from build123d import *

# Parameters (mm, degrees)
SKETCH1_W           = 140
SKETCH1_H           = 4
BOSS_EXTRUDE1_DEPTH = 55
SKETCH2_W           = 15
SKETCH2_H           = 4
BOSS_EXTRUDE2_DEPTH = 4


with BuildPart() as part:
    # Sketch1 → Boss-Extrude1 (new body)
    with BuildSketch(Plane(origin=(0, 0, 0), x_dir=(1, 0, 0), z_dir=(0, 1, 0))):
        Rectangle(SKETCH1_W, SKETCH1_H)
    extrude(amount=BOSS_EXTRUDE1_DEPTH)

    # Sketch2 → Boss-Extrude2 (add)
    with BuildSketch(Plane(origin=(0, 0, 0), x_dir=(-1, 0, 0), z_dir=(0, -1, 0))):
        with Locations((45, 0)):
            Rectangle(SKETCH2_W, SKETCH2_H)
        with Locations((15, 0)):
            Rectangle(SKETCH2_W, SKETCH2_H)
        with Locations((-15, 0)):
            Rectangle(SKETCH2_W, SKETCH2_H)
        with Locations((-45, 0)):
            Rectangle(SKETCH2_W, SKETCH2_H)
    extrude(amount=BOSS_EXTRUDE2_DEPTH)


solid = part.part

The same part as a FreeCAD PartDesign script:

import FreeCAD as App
import Part
import Sketcher
from FreeCAD import Vector

doc = App.newDocument("Part")
params = doc.addObject("Spreadsheet::Sheet", "Params")
for row, (alias, value) in enumerate([
    ("sketch1_width", "140 mm"),
    ("sketch1_height", "4 mm"),
    ("pad1_length", "55 mm"),
    ("sketch2_width", "15 mm"),
    ("sketch2_height", "4 mm"),
    ("pad2_length", "4 mm"),
], start=1):
    params.set(f"A{row}", alias)
    params.set(f"B{row}", "=" + value)
    params.setAlias(f"B{row}", alias)

body = doc.addObject("PartDesign::Body", "Body")

# Sketch on XZ plane
sketch1 = body.newObject("Sketcher::SketchObject", "Sketch")
sketch1.AttachmentSupport = (doc.getObject("XZ_Plane"), [""])
sketch1.MapMode = "FlatFace"
sketch1.addGeometry([
    Part.LineSegment(Vector(-70, -2, 0), Vector(-70, 2, 0)),
    Part.LineSegment(Vector(-70, 2, 0), Vector(70, 2, 0)),
    Part.LineSegment(Vector(70, 2, 0), Vector(70, -2, 0)),
    Part.LineSegment(Vector(70, -2, 0), Vector(-70, -2, 0)),
], False)
sketch1.addConstraint([
    Sketcher.Constraint("Coincident", 0, 2, 1, 1),
    Sketcher.Constraint("Coincident", 1, 2, 2, 1),
    Sketcher.Constraint("Coincident", 2, 2, 3, 1),
    Sketcher.Constraint("Coincident", 3, 2, 0, 1),
    Sketcher.Constraint("Vertical", 0),
    Sketcher.Constraint("Horizontal", 1),
    Sketcher.Constraint("Vertical", 2),
    Sketcher.Constraint("Horizontal", 3),
    Sketcher.Constraint("Symmetric", 0, 2, 2, 2, -1, 1),
    Sketcher.Constraint("DistanceX", 1, 1, 1, 2, 140.0),
    Sketcher.Constraint("DistanceY", 0, 1, 0, 2, 4.0),
])
sketch1.setExpression("Constraints[9]", "Params.sketch1_width")
sketch1.setExpression("Constraints[10]", "Params.sketch1_height")
pad1 = body.newObject("PartDesign::Pad", "Pad")
pad1.Profile = sketch1
pad1.setExpression("Length", "Params.pad1_length")
pad1.Reversed = True

# Sketch on XZ plane
sketch2 = body.newObject("Sketcher::SketchObject", "Sketch001")
sketch2.AttachmentSupport = (doc.getObject("XZ_Plane"), [""])
sketch2.MapMode = "FlatFace"
sketch2.addGeometry([
    Part.LineSegment(Vector(-37.5, -2, 0), Vector(-37.5, 2, 0)),  # 0
    Part.LineSegment(Vector(-37.5, 2, 0), Vector(-52.5, 2, 0)),  # 1
    Part.LineSegment(Vector(-52.5, 2, 0), Vector(-52.5, -2, 0)),  # 2
    Part.LineSegment(Vector(-52.5, -2, 0), Vector(-37.5, -2, 0)),  # 3
    Part.LineSegment(Vector(-7.5, -2, 0), Vector(-7.5, 2, 0)),  # 4
    Part.LineSegment(Vector(-7.5, 2, 0), Vector(-22.5, 2, 0)),  # 5
    Part.LineSegment(Vector(-22.5, 2, 0), Vector(-22.5, -2, 0)),  # 6
    Part.LineSegment(Vector(-22.5, -2, 0), Vector(-7.5, -2, 0)),  # 7
    Part.LineSegment(Vector(22.5, -2, 0), Vector(22.5, 2, 0)),  # 8
    Part.LineSegment(Vector(22.5, 2, 0), Vector(7.5, 2, 0)),  # 9
    Part.LineSegment(Vector(7.5, 2, 0), Vector(7.5, -2, 0)),  # 10
    Part.LineSegment(Vector(7.5, -2, 0), Vector(22.5, -2, 0)),  # 11
    Part.LineSegment(Vector(52.5, -2, 0), Vector(52.5, 2, 0)),  # 12
    Part.LineSegment(Vector(52.5, 2, 0), Vector(37.5, 2, 0)),  # 13
    Part.LineSegment(Vector(37.5, 2, 0), Vector(37.5, -2, 0)),  # 14
    Part.LineSegment(Vector(37.5, -2, 0), Vector(52.5, -2, 0)),  # 15
], False)
sketch2.addConstraint([
    Sketcher.Constraint("Coincident", 0, 2, 1, 1),
    Sketcher.Constraint("Coincident", 1, 2, 2, 1),
    Sketcher.Constraint("Coincident", 2, 2, 3, 1),
    Sketcher.Constraint("Coincident", 3, 2, 0, 1),
    Sketcher.Constraint("Coincident", 4, 2, 5, 1),
    Sketcher.Constraint("Coincident", 5, 2, 6, 1),
    Sketcher.Constraint("Coincident", 6, 2, 7, 1),
    Sketcher.Constraint("Coincident", 7, 2, 4, 1),
    Sketcher.Constraint("Coincident", 8, 2, 9, 1),
    Sketcher.Constraint("Coincident", 9, 2, 10, 1),
    Sketcher.Constraint("Coincident", 10, 2, 11, 1),
    Sketcher.Constraint("Coincident", 11, 2, 8, 1),
    Sketcher.Constraint("Coincident", 12, 2, 13, 1),
    Sketcher.Constraint("Coincident", 13, 2, 14, 1),
    Sketcher.Constraint("Coincident", 14, 2, 15, 1),
    Sketcher.Constraint("Coincident", 15, 2, 12, 1),
    Sketcher.Constraint("Vertical", 0),
    Sketcher.Constraint("Horizontal", 1),
    Sketcher.Constraint("Vertical", 2),
    Sketcher.Constraint("Horizontal", 3),
    Sketcher.Constraint("Vertical", 4),
    Sketcher.Constraint("Horizontal", 5),
    Sketcher.Constraint("Vertical", 6),
    Sketcher.Constraint("Horizontal", 7),
    Sketcher.Constraint("Vertical", 8),
    Sketcher.Constraint("Horizontal", 9),
    Sketcher.Constraint("Vertical", 10),
    Sketcher.Constraint("Horizontal", 11),
    Sketcher.Constraint("Vertical", 12),
    Sketcher.Constraint("Horizontal", 13),
    Sketcher.Constraint("Vertical", 14),
    Sketcher.Constraint("Horizontal", 15),
    Sketcher.Constraint("Symmetric", 6, 2, 8, 2, -1, 1),
    Sketcher.Constraint("Symmetric", 4, 2, 10, 2, -1, 1),
    Sketcher.Constraint("Symmetric", 2, 2, 12, 2, -1, 1),
    Sketcher.Constraint("Symmetric", 0, 2, 14, 2, -1, 1),
    Sketcher.Constraint("Horizontal", 1, 2, 4, 2),
    Sketcher.Constraint("Horizontal", 3, 2, 6, 2),
    Sketcher.Constraint("Horizontal", 5, 2, 8, 2),
    Sketcher.Constraint("Equal", 3, 5),
    Sketcher.Constraint("DistanceX", 1, 2, 1, 1, 15.0),
    Sketcher.Constraint("DistanceY", 0, 1, 0, 2, 4.0),
    Sketcher.Constraint("DistanceX", 0, 2, 4, 2, 30.0),
    Sketcher.Constraint("DistanceX", 4, 2, 8, 2, 30.0),
])
sketch2.setExpression("Constraints[40]", "Params.sketch2_width")
sketch2.setExpression("Constraints[41]", "Params.sketch2_height")
pad2 = body.newObject("PartDesign::Pad", "Pad001")
pad2.Profile = sketch2
pad2.setExpression("Length", "Params.pad2_length")

doc.recompute()
